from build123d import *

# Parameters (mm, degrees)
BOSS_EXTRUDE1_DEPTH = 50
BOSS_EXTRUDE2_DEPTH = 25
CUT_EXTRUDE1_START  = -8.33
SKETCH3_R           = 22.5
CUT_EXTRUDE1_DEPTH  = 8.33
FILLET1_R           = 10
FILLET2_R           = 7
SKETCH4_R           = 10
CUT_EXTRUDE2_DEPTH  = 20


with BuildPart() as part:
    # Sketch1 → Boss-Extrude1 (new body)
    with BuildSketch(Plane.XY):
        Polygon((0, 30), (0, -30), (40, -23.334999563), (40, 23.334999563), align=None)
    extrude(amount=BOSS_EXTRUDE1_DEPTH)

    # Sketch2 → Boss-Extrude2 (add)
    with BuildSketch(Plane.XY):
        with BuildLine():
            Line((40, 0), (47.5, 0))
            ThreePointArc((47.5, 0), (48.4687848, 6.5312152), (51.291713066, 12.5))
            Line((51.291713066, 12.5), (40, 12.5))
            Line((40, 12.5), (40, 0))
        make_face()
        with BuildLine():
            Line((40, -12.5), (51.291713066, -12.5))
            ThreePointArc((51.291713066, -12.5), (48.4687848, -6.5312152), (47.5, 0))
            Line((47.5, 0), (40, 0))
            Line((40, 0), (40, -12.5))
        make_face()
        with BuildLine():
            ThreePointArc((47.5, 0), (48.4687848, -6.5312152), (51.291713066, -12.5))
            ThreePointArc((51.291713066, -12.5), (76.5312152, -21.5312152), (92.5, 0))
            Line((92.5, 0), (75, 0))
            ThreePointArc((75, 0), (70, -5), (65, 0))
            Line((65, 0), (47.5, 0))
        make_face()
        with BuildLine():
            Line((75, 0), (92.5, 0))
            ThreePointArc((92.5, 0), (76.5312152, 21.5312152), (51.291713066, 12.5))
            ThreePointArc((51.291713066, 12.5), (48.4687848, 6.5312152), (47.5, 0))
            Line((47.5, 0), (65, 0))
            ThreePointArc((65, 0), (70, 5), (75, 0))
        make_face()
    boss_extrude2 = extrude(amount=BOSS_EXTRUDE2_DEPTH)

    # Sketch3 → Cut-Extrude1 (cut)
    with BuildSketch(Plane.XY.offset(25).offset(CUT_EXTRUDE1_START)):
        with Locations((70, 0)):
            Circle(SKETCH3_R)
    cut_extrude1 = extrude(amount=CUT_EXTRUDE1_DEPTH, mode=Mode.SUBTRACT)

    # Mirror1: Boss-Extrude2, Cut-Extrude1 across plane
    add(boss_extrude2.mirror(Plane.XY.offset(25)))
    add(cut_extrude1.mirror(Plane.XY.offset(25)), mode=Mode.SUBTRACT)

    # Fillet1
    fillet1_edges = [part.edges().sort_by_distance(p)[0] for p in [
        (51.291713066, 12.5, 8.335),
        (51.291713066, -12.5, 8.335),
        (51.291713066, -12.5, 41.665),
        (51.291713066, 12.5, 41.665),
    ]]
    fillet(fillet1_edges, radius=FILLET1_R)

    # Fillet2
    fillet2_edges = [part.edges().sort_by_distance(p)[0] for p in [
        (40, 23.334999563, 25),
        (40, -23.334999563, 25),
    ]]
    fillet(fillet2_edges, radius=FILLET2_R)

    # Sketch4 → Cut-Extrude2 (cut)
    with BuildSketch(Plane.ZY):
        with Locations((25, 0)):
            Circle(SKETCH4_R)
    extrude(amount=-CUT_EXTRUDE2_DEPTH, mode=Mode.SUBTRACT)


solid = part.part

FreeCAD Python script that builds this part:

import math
import FreeCAD as App
import Part
import Sketcher
from FreeCAD import Vector


def edges_at(feature, points):
    """Names of the edges that pass closest to the given points."""
    edges = feature.Shape.Edges
    near = lambda p: min(range(len(edges)), key=lambda i: edges[i].distToShape(Part.Vertex(*p))[0])
    return sorted({f"Edge{near(p) + 1}" for p in points})


def add_polygon(sketch, points):
    """Adds a closed chain of lines whose ends are joined by coincident constraints."""
    first, n = sketch.GeometryCount, len(points)
    for a, b in zip(points, points[1:] + points[:1]):
        sketch.addGeometry(Part.LineSegment(App.Vector(*a, 0), App.Vector(*b, 0)), False)
    for i in range(n):
        sketch.addConstraint(Sketcher.Constraint("Coincident", first + i, 2, first + (i + 1) % n, 1))

doc = App.newDocument("Part")
body = doc.addObject("PartDesign::Body", "Body")

sketch1 = body.newObject("Sketcher::SketchObject", "Sketch")
sketch1.AttachmentSupport = (doc.getObject("XY_Plane"), [""])
sketch1.MapMode = "FlatFace"
add_polygon(sketch1, [(0, 30), (0, -30), (40, -23), (40, 23)])
sketch1.addConstraint([
    Sketcher.Constraint("Vertical", 0),
    Sketcher.Constraint("Vertical", 2),
    Sketcher.Constraint("Symmetric", 0, 2, 3, 2, -1, 1),
    Sketcher.Constraint("Equal", 1, 3),
    Sketcher.Constraint("DistanceY", 0, 2, 0, 1, 60.0),
    Sketcher.Constraint("DistanceX", -1, 1, 1, 2, 40.0),
    Sketcher.Constraint("DistanceY", 2, 1, 2, 2, 46.669999),
])
pad1 = body.newObject("PartDesign::Pad", "Pad")
pad1.Profile = sketch1
pad1.Length = 50

sketch2 = body.newObject("Sketcher::SketchObject", "Sketch001")
sketch2.AttachmentSupport = (doc.getObject("XY_Plane"), [""])
sketch2.MapMode = "FlatFace"
sketch2.addGeometry([
    Part.ArcOfCircle(Part.Circle(Vector(70, 0, 0), Vector(0, 0, 1), 22), math.radians(0), math.radians(146)),
    Part.LineSegment(Vector(51, 12, 0), Vector(40, 12, 0)),
    Part.LineSegment(Vector(40, 12, 0), Vector(40, -12, 0)),
    Part.LineSegment(Vector(40, -12, 0), Vector(51, -12, 0)),
    Part.ArcOfCircle(Part.Circle(Vector(70, 0, 0), Vector(0, 0, 1), 22), math.radians(-146), math.radians(0)),
    Part.Circle(Vector(70, 0, 0), Vector(0, 0, 1), 5),
], False)
sketch2.addConstraint([
    Sketcher.Constraint("Coincident", 0, 2, 1, 1),
    Sketcher.Constraint("Coincident", 1, 2, 2, 1),
    Sketcher.Constraint("Coincident", 2, 2, 3, 1),
    Sketcher.Constraint("Coincident", 3, 2, 4, 1),
    Sketcher.Constraint("Tangent", 4, 2, 0, 1),
    Sketcher.Constraint("Horizontal", 1),
    Sketcher.Constraint("Vertical", 2),
    Sketcher.Constraint("Horizontal", 3),
    Sketcher.Constraint("Coincident", 5, 3, 0, 3),
    Sketcher.Constraint("Equal", 0, 4),
    Sketcher.Constraint("Symmetric", 0, 2, 3, 2, -1),
    Sketcher.Constraint("PointOnObject", 4, 2, -1),
    Sketcher.Constraint("Diameter", 5, 10.0),
    Sketcher.Constraint("Radius", 0, 22.5),
    Sketcher.Constraint("DistanceY", 2, 2, 2, 1, 25.0),
    Sketcher.Constraint("DistanceX", -1, 1, 0, 3, 70.0),
    Sketcher.Constraint("DistanceX", -1, 1, 1, 2, 40.0),
])
pad2 = body.newObject("PartDesign::Pad", "Pad001")
pad2.Profile = sketch2
pad2.Length = 25

sketch3 = body.newObject("Sketcher::SketchObject", "Sketch002")
sketch3.AttachmentSupport = (doc.getObject("XY_Plane"), [""])
sketch3.MapMode = "FlatFace"
sketch3.AttachmentOffset = App.Placement(Vector(0, 0, 16.67), App.Rotation())
sketch3.addGeometry(Part.Circle(Vector(70, 0, 0), Vector(0, 0, 1), 22), False)
sketch3.addConstraint([
    Sketcher.Constraint("PointOnObject", 0, 3, -1),
    Sketcher.Constraint("Diameter", 0, 45.0),
    Sketcher.Constraint("DistanceX", -1, 1, 0, 3, 70.0),
])
pocket1 = body.newObject("PartDesign::Pocket", "Pocket")
pocket1.Profile = sketch3
pocket1.Length = 8.33
pocket1.Reversed = True
doc.recompute()

datumplane = body.newObject("PartDesign::Plane", "DatumPlane")
datumplane.AttachmentSupport = (doc.getObject("XY_Plane"), [""])
datumplane.MapMode = "FlatFace"
datumplane.AttachmentOffset = App.Placement(Vector(0, 0, 25), App.Rotation())
mirrored = body.newObject("PartDesign::Mirrored", "Mirrored")
mirrored.Originals = [pad2, pocket1]
mirrored.MirrorPlane = (datumplane, [""])
body.Tip = mirrored
doc.recompute()

fillet = body.newObject("PartDesign::Fillet", "Fillet")
fillet.Base = (mirrored, edges_at(mirrored, [
    (51.292, 12.5, 8.335),
    (51.292, -12.5, 8.335),
    (51.292, -12.5, 41.665),
    (51.292, 12.5, 41.665),
]))
fillet.Radius = 10
doc.recompute()

fillet2 = body.newObject("PartDesign::Fillet", "Fillet001")
fillet2.Base = (fillet, edges_at(fillet, [(40, 23.335, 25), (40, -23.335, 25)]))
fillet2.Radius = 7

sketch4 = body.newObject("Sketcher::SketchObject", "Sketch003")
sketch4.AttachmentSupport = (doc.getObject("YZ_Plane"), [""])
sketch4.MapMode = "FlatFace"
sketch4.addGeometry(Part.Circle(Vector(0, 25, 0), Vector(0, 0, 1), 10), False)
sketch4.addConstraint([
    Sketcher.Constraint("PointOnObject", 0, 3, -2),
    Sketcher.Constraint("Diameter", 0, 20.0),
    Sketcher.Constraint("DistanceY", -1, 1, 0, 3, 25.0),
])
pocket2 = body.newObject("PartDesign::Pocket", "Pocket001")
pocket2.Profile = sketch4
pocket2.Length = 20
pocket2.Reversed = True

doc.recompute()
